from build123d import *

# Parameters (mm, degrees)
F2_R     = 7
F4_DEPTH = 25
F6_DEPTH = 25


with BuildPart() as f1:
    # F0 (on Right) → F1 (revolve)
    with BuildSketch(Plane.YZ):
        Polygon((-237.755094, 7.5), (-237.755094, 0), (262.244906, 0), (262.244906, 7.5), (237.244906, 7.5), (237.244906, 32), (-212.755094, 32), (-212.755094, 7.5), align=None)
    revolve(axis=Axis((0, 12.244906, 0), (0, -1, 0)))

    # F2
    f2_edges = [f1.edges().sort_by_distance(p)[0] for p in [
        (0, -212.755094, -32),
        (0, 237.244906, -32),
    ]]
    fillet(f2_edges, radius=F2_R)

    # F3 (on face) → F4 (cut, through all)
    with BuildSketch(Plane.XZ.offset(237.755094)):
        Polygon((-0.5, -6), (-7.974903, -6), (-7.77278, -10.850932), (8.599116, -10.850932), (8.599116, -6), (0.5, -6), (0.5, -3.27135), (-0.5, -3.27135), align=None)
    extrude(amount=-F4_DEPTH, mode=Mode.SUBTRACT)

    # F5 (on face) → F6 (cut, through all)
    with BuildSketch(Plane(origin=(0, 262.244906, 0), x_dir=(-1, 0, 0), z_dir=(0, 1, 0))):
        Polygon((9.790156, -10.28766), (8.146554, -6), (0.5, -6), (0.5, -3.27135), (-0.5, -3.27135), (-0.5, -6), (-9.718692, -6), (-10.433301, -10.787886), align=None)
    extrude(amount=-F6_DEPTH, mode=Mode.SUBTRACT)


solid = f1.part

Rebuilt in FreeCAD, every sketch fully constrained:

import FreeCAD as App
import Part
import Sketcher

V = App.Vector


def edges_at(feature, points):
    """Names of the edges that pass closest to the given points."""
    edges = feature.Shape.Edges
    near = lambda p: min(range(len(edges)), key=lambda i: edges[i].distToShape(Part.Vertex(*p))[0])
    return sorted({f"Edge{near(p) + 1}" for p in points})

doc = App.newDocument("Part")
body = doc.addObject("PartDesign::Body", "Body")

# Sketch on YZ plane
sketch1 = body.newObject("Sketcher::SketchObject", "Sketch")
sketch1.AttachmentSupport = (doc.getObject("YZ_Plane"), [""])
sketch1.MapMode = "FlatFace"
sketch1.addGeometry([
    Part.LineSegment(V(-238, 8, 0), V(-238, 0, 0)),  # 0
    Part.LineSegment(V(-238, 0, 0), V(262, 0, 0)),  # 1
    Part.LineSegment(V(262, 0, 0), V(262, 8, 0)),  # 2
    Part.LineSegment(V(262, 8, 0), V(237, 8, 0)),  # 3
    Part.LineSegment(V(237, 8, 0), V(237, 32, 0)),  # 4
    Part.LineSegment(V(237, 32, 0), V(-213, 32, 0)),  # 5
    Part.LineSegment(V(-213, 32, 0), V(-213, 8, 0)),  # 6
    Part.LineSegment(V(-213, 8, 0), V(-238, 8, 0)),  # 7
], False)
sketch1.addConstraint([
    Sketcher.Constraint("Coincident", 0, 2, 1, 1),
    Sketcher.Constraint("Coincident", 1, 2, 2, 1),
    Sketcher.Constraint("Coincident", 2, 2, 3, 1),
    Sketcher.Constraint("Coincident", 3, 2, 4, 1),
    Sketcher.Constraint("Coincident", 4, 2, 5, 1),
    Sketcher.Constraint("Coincident", 5, 2, 6, 1),
    Sketcher.Constraint("Coincident", 6, 2, 7, 1),
    Sketcher.Constraint("Coincident", 7, 2, 0, 1),
    Sketcher.Constraint("Vertical", 0),
    Sketcher.Constraint("Horizontal", 1),
    Sketcher.Constraint("Vertical", 2),
    Sketcher.Constraint("Horizontal", 3),
    Sketcher.Constraint("Vertical", 4),
    Sketcher.Constraint("Horizontal", 5),
    Sketcher.Constraint("Vertical", 6),
    Sketcher.Constraint("Horizontal", 7),
    Sketcher.Constraint("PointOnObject", 0, 2, -1),
    Sketcher.Constraint("Horizontal", 3, 2, 6, 2),
    Sketcher.Constraint("Equal", 3, 7),
    Sketcher.Constraint("DistanceX", 1, 1, 1, 2, 500.0),
    Sketcher.Constraint("DistanceX", 3, 2, 3, 1, 25.0),
    Sketcher.Constraint("DistanceY", 0, 2, 0, 1, 7.5),
    Sketcher.Constraint("DistanceY", 4, 1, 4, 2, 24.5),
    Sketcher.Constraint("DistanceX", 0, 2, -1, 1, 237.755094),
])
revolution = body.newObject("PartDesign::Revolution", "Revolution")
revolution.Profile = sketch1
revolution.ReferenceAxis = (sketch1, ["H_Axis"])
revolution.Angle = 360
doc.recompute()

fillet = body.newObject("PartDesign::Fillet", "Fillet")
fillet.Base = (revolution, edges_at(revolution, [(0, -212.755, -32), (0, 237.245, -32)]))
fillet.Radius = 7

# Sketch on XZ plane
sketch2 = body.newObject("Sketcher::SketchObject", "Sketch001")
sketch2.AttachmentSupport = (doc.getObject("XZ_Plane"), [""])
sketch2.MapMode = "FlatFace"
sketch2.AttachmentOffset = App.Placement(V(0, 0, 237.755094), App.Rotation())
sketch2.addGeometry([
    Part.LineSegment(V(-0.5, -6, 0), V(-8, -6, 0)),  # 0
    Part.LineSegment(V(-8, -6, 0), V(-7.8, -10.9, 0)),  # 1
    Part.LineSegment(V(-7.8, -10.9, 0), V(8.6, -10.9, 0)),  # 2
    Part.LineSegment(V(8.6, -10.9, 0), V(8.6, -6, 0)),  # 3
    Part.LineSegment(V(8.6, -6, 0), V(0.5, -6, 0)),  # 4
    Part.LineSegment(V(0.5, -6, 0), V(0.5, -3.3, 0)),  # 5
    Part.LineSegment(V(0.5, -3.3, 0), V(-0.5, -3.3, 0)),  # 6
    Part.LineSegment(V(-0.5, -3.3, 0), V(-0.5, -6, 0)),  # 7
], False)
sketch2.addConstraint([
    Sketcher.Constraint("Coincident", 0, 2, 1, 1),
    Sketcher.Constraint("Coincident", 1, 2, 2, 1),
    Sketcher.Constraint("Coincident", 2, 2, 3, 1),
    Sketcher.Constraint("Coincident", 3, 2, 4, 1),
    Sketcher.Constraint("Coincident", 4, 2, 5, 1),
    Sketcher.Constraint("Coincident", 5, 2, 6, 1),
    Sketcher.Constraint("Coincident", 6, 2, 7, 1),
    Sketcher.Constraint("Coincident", 7, 2, 0, 1),
    Sketcher.Constraint("Horizontal", 0),
    Sketcher.Constraint("Horizontal", 2),
    Sketcher.Constraint("Vertical", 3),
    Sketcher.Constraint("Horizontal", 4),
    Sketcher.Constraint("Vertical", 5),
    Sketcher.Constraint("Horizontal", 6),
    Sketcher.Constraint("Vertical", 7),
    Sketcher.Constraint("Symmetric", 4, 2, 7, 2, -2),
    Sketcher.Constraint("DistanceX", 6, 2, 6, 1, 1.0),
    Sketcher.Constraint("DistanceY", 0, 2, -1, 1, 6.0),
    Sketcher.Constraint("DistanceY", 5, 1, 5, 2, 2.72865),
    Sketcher.Constraint("Distance", 1, 4.855141),
    Sketcher.Constraint("DistanceX", 0, 2, 0, 1, 7.474903),
    Sketcher.Constraint("DistanceX", 2, 1, 2, 2, 16.371896),
    Sketcher.Constraint("DistanceX", 4, 2, 4, 1, 8.099116),
])
pocket1 = body.newObject("PartDesign::Pocket", "Pocket")
pocket1.Profile = sketch2
pocket1.Length = 25

# Sketch on XZ plane
sketch3 = body.newObject("Sketcher::SketchObject", "Sketch002")
sketch3.AttachmentSupport = (doc.getObject("XZ_Plane"), [""])
sketch3.MapMode = "FlatFace"
sketch3.AttachmentOffset = App.Placement(V(0, 0, -262.244906), App.Rotation())
sketch3.addGeometry([
    Part.LineSegment(V(-9.8, -10.3, 0), V(-8.1, -6, 0)),  # 0
    Part.LineSegment(V(-8.1, -6, 0), V(-0.5, -6, 0)),  # 1
    Part.LineSegment(V(-0.5, -6, 0), V(-0.5, -3.3, 0)),  # 2
    Part.LineSegment(V(-0.5, -3.3, 0), V(0.5, -3.3, 0)),  # 3
    Part.LineSegment(V(0.5, -3.3, 0), V(0.5, -6, 0)),  # 4
    Part.LineSegment(V(0.5, -6, 0), V(9.7, -6, 0)),  # 5
    Part.LineSegment(V(9.7, -6, 0), V(10.4, -10.8, 0)),  # 6
    Part.LineSegment(V(10.4, -10.8, 0), V(-9.8, -10.3, 0)),  # 7
], False)
sketch3.addConstraint([
    Sketcher.Constraint("Coincident", 0, 2, 1, 1),
    Sketcher.Constraint("Coincident", 1, 2, 2, 1),
    Sketcher.Constraint("Coincident", 2, 2, 3, 1),
    Sketcher.Constraint("Coincident", 3, 2, 4, 1),
    Sketcher.Constraint("Coincident", 4, 2, 5, 1),
    Sketcher.Constraint("Coincident", 5, 2, 6, 1),
    Sketcher.Constraint("Coincident", 6, 2, 7, 1),
    Sketcher.Constraint("Coincident", 7, 2, 0, 1),
    Sketcher.Constraint("Horizontal", 1),
    Sketcher.Constraint("Vertical", 2),
    Sketcher.Constraint("Horizontal", 3),
    Sketcher.Constraint("Vertical", 4),
    Sketcher.Constraint("Horizontal", 5),
    Sketcher.Constraint("Symmetric", 1, 2, 4, 2, -2),
    Sketcher.Constraint("DistanceX", 3, 1, 3, 2, 1.0),
    Sketcher.Constraint("DistanceY", 0, 2, -1, 1, 6.0),
    Sketcher.Constraint("DistanceY", 2, 1, 2, 2, 2.72865),
    Sketcher.Constraint("DistanceX", -1, 1, 6, 2, 10.433301),
    Sketcher.Constraint("DistanceX", 7, 2, 0, 2, 1.643602),
    Sketcher.Constraint("Distance", 0, 4.59189),
    Sketcher.Constraint("Distance", 6, 4.840921),
    Sketcher.Constraint("DistanceX", 1, 1, 1, 2, 7.646554),
    Sketcher.Constraint("DistanceX", 5, 1, 5, 2, 9.218692),
])
pocket2 = body.newObject("PartDesign::Pocket", "Pocket001")
pocket2.Profile = sketch3
pocket2.Length = 25
pocket2.Reversed = True

doc.recompute()
